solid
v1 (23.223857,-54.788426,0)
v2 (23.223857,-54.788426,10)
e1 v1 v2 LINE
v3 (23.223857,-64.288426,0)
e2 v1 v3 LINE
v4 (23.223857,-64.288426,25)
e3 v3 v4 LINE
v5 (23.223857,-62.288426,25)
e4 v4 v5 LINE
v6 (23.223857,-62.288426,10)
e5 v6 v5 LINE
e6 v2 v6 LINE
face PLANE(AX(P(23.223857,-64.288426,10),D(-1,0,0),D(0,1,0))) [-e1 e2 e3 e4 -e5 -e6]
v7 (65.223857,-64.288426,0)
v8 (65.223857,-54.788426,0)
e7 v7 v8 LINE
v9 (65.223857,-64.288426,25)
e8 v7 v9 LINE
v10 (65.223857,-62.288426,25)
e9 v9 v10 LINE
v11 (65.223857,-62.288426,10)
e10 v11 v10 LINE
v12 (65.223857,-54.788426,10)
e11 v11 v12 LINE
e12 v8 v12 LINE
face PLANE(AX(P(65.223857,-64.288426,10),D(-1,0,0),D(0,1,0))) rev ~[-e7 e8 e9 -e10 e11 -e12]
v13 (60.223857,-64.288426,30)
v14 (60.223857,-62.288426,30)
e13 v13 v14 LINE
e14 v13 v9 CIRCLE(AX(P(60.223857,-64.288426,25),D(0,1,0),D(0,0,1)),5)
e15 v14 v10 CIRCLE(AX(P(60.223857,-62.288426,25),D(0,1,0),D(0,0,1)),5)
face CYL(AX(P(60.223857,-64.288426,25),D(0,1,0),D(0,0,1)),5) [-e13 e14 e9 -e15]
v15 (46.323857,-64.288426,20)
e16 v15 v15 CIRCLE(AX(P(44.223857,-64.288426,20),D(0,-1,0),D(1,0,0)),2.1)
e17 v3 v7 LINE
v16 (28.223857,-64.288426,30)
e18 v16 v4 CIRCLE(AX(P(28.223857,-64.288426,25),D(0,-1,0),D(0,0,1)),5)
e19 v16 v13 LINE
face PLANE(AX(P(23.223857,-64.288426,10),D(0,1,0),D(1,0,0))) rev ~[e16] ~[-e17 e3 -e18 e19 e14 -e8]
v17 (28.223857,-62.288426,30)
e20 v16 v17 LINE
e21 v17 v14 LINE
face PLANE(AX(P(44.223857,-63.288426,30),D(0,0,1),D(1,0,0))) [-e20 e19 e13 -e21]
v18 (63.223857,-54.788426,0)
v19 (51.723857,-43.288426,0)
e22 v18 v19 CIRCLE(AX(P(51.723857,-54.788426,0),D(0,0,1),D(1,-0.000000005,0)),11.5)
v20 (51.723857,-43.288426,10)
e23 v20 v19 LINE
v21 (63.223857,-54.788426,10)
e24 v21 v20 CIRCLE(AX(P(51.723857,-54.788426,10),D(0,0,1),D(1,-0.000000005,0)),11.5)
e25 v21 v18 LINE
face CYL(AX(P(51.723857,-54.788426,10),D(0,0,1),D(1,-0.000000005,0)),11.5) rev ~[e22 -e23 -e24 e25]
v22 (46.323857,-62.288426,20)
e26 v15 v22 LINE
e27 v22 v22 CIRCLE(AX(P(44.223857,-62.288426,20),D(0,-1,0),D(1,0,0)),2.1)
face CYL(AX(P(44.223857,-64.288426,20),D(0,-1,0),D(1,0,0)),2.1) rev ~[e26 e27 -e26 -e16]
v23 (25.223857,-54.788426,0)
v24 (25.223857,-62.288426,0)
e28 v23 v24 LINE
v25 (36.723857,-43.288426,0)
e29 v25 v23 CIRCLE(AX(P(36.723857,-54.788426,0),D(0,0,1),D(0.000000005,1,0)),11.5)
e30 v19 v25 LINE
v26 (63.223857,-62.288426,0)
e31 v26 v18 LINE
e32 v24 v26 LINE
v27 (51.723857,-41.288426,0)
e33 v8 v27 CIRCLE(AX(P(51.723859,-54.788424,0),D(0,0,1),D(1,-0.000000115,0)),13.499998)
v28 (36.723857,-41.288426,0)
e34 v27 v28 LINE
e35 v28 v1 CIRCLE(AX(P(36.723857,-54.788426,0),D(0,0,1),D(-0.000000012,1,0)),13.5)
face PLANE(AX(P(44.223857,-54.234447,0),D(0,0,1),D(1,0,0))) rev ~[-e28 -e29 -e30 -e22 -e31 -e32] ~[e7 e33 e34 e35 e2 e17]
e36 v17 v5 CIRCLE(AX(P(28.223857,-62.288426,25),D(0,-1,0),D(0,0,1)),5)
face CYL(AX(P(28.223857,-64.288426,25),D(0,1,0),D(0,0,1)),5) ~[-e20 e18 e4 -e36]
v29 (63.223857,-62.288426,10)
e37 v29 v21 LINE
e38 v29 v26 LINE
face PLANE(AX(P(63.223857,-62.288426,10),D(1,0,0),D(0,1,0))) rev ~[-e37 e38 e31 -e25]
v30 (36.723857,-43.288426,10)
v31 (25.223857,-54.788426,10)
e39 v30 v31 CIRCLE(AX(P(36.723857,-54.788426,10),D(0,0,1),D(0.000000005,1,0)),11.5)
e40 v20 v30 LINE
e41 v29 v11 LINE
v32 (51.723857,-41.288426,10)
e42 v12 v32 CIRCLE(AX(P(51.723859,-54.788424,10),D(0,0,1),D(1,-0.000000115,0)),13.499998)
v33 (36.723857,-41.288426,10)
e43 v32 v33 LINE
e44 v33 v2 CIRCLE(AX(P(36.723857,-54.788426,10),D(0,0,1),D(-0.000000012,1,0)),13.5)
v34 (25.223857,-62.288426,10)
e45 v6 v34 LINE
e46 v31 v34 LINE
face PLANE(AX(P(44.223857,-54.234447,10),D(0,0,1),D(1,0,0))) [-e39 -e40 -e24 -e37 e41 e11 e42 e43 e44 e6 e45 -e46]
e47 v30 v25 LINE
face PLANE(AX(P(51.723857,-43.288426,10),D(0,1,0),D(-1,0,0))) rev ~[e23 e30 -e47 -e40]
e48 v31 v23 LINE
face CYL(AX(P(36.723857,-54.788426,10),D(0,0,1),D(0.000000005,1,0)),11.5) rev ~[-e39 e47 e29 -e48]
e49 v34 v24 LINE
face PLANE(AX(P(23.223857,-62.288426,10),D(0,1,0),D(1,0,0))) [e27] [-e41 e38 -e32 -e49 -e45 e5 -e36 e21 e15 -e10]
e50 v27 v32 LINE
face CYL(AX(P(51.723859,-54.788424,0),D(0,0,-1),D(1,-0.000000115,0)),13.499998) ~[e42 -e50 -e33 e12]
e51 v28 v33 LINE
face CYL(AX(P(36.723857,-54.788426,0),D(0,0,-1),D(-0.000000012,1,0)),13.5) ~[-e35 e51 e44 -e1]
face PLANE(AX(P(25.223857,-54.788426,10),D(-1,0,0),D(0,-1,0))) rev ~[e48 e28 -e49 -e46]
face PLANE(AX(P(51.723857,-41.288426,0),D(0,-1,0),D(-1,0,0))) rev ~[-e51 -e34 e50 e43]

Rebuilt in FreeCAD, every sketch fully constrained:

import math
import FreeCAD as App
import Part
import Sketcher


def edges_at(feature, points):
    """Names of the edges that pass closest to the given points."""
    edges = feature.Shape.Edges
    near = lambda p: min(range(len(edges)), key=lambda i: edges[i].distToShape(Part.Vertex(*p))[0])
    return sorted({f"Edge{near(p) + 1}" for p in points})


def add_polygon(sketch, points):
    """Adds a closed chain of lines whose ends are joined by coincident constraints."""
    first, n = sketch.GeometryCount, len(points)
    for a, b in zip(points, points[1:] + points[:1]):
        sketch.addGeometry(Part.LineSegment(App.Vector(*a, 0), App.Vector(*b, 0)), False)
    for i in range(n):
        sketch.addConstraint(Sketcher.Constraint("Coincident", first + i, 2, first + (i + 1) % n, 1))

doc = App.newDocument("Part")
body = doc.addObject("PartDesign::Body", "Body")

sketch1 = body.newObject("Sketcher::SketchObject", "Sketch")
sketch1.AttachmentSupport = (doc.getObject("XY_Plane"), [""])
sketch1.MapMode = "FlatFace"
sketch1.addGeometry([
    Part.LineSegment(App.Vector(52, -41, 0), App.Vector(37, -41, 0)),
    Part.ArcOfCircle(Part.Circle(App.Vector(37, -55, 0), App.Vector(0, 0, 1), 14), math.radians(90), math.radians(180)),
    Part.LineSegment(App.Vector(23, -55, 0), App.Vector(23, -64, 0)),
    Part.LineSegment(App.Vector(23, -64, 0), App.Vector(65, -64, 0)),
    Part.LineSegment(App.Vector(65, -64, 0), App.Vector(65, -55, 0)),
    Part.ArcOfCircle(Part.Circle(App.Vector(52, -55, 0), App.Vector(0, 0, 1), 13), math.radians(0), math.radians(90)),
], False)
sketch1.addConstraint([
    Sketcher.Constraint("Tangent", 0, 2, 1, 1),
    Sketcher.Constraint("Tangent", 1, 2, 2, 1),
    Sketcher.Constraint("Coincident", 2, 2, 3, 1),
    Sketcher.Constraint("Coincident", 3, 2, 4, 1),
    Sketcher.Constraint("Tangent", 4, 2, 5, 1),
    Sketcher.Constraint("Tangent", 5, 2, 0, 1),
    Sketcher.Constraint("Horizontal", 0),
    Sketcher.Constraint("Vertical", 2),
    Sketcher.Constraint("Horizontal", 3),
    Sketcher.Constraint("Vertical", 4),
    Sketcher.Constraint("Equal", 1, 5),
    Sketcher.Constraint("Radius", 1, 13.5),
    Sketcher.Constraint("DistanceX", 0, 2, 0, 1, 15.0),
    Sketcher.Constraint("DistanceY", 2, 2, 2, 1, 9.5),
    Sketcher.Constraint("DistanceX", -1, 1, 5, 3, 51.723859),
    Sketcher.Constraint("DistanceY", 1, 3, -1, 1, 54.788426),
])
pad1 = body.newObject("PartDesign::Pad", "Pad")
pad1.Profile = sketch1
pad1.Length = 10

sketch2 = body.newObject("Sketcher::SketchObject", "Sketch001")
sketch2.AttachmentSupport = (doc.getObject("XY_Plane"), [""])
sketch2.MapMode = "FlatFace"
sketch2.AttachmentOffset = App.Placement(App.Vector(0, 0, 10), App.Rotation())
sketch2.addGeometry([
    Part.LineSegment(App.Vector(52, -43, 0), App.Vector(37, -43, 0)),
    Part.ArcOfCircle(Part.Circle(App.Vector(37, -55, 0), App.Vector(0, 0, 1), 11), math.radians(90), math.radians(180)),
    Part.LineSegment(App.Vector(25, -55, 0), App.Vector(25, -62, 0)),
    Part.LineSegment(App.Vector(25, -62, 0), App.Vector(63, -62, 0)),
    Part.LineSegment(App.Vector(63, -62, 0), App.Vector(63, -55, 0)),
    Part.ArcOfCircle(Part.Circle(App.Vector(52, -55, 0), App.Vector(0, 0, 1), 11), math.radians(0), math.radians(90)),
], False)
sketch2.addConstraint([
    Sketcher.Constraint("Tangent", 0, 2, 1, 1),
    Sketcher.Constraint("Tangent", 1, 2, 2, 1),
    Sketcher.Constraint("Coincident", 2, 2, 3, 1),
    Sketcher.Constraint("Coincident", 3, 2, 4, 1),
    Sketcher.Constraint("Tangent", 4, 2, 5, 1),
    Sketcher.Constraint("Tangent", 5, 2, 0, 1),
    Sketcher.Constraint("Horizontal", 0),
    Sketcher.Constraint("Vertical", 2),
    Sketcher.Constraint("Horizontal", 3),
    Sketcher.Constraint("Vertical", 4),
    Sketcher.Constraint("Equal", 1, 5),
    Sketcher.Constraint("Radius", 1, 11.5),
    Sketcher.Constraint("DistanceX", 0, 2, 0, 1, 15.0),
    Sketcher.Constraint("DistanceY", 2, 2, 2, 1, 7.5),
    Sketcher.Constraint("DistanceX", -1, 1, 1, 3, 36.723857),
    Sketcher.Constraint("DistanceY", 1, 3, -1, 1, 54.788426),
])
pocket1 = body.newObject("PartDesign::Pocket", "Pocket")
pocket1.Profile = sketch2
pocket1.Length = 25

sketch3 = body.newObject("Sketcher::SketchObject", "Sketch002")
sketch3.AttachmentSupport = (doc.getObject("XY_Plane"), [""])
sketch3.MapMode = "FlatFace"
sketch3.AttachmentOffset = App.Placement(App.Vector(0, 0, 10), App.Rotation())
add_polygon(sketch3, [(23.2, -62.3), (23.2, -64.3), (65.2, -64.3), (65.2, -62.3)])
sketch3.addConstraint([
    Sketcher.Constraint("Vertical", 0),
    Sketcher.Constraint("Horizontal", 1),
    Sketcher.Constraint("Vertical", 2),
    Sketcher.Constraint("Horizontal", 3),
    Sketcher.Constraint("DistanceX", 1, 1, 1, 2, 42.0),
    Sketcher.Constraint("DistanceY", 0, 2, 0, 1, 2.0),
    Sketcher.Constraint("DistanceX", -1, 1, 0, 2, 23.223857),
    Sketcher.Constraint("DistanceY", 0, 2, -1, 1, 64.288426),
])
pad2 = body.newObject("PartDesign::Pad", "Pad001")
pad2.Profile = sketch3
pad2.Length = 20

sketch4 = body.newObject("Sketcher::SketchObject", "Sketch003")
sketch4.AttachmentSupport = (doc.getObject("XZ_Plane"), [""])
sketch4.MapMode = "FlatFace"
sketch4.AttachmentOffset = App.Placement(App.Vector(0, 0, 64.288426), App.Rotation())
sketch4.addGeometry(Part.Circle(App.Vector(44.2, 20, 0), App.Vector(0, 0, 1), 2.1), False)
sketch4.addConstraint([
    Sketcher.Constraint("Diameter", 0, 4.2),
    Sketcher.Constraint("DistanceY", -1, 1, 0, 3, 20.0),
    Sketcher.Constraint("DistanceX", -1, 1, 0, 3, 44.223857),
])
pocket2 = body.newObject("PartDesign::Pocket", "Pocket001")
pocket2.Profile = sketch4
pocket2.Length = 4
doc.recompute()

fillet = body.newObject("PartDesign::Fillet", "Fillet")
fillet.Base = (pocket2, edges_at(pocket2, [(65.224, -63.288, 30)]))
fillet.Radius = 5
doc.recompute()

fillet2 = body.newObject("PartDesign::Fillet", "Fillet001")
fillet2.Base = (fillet, edges_at(fillet, [(23.224, -63.288, 30)]))
fillet2.Radius = 5

doc.recompute()
